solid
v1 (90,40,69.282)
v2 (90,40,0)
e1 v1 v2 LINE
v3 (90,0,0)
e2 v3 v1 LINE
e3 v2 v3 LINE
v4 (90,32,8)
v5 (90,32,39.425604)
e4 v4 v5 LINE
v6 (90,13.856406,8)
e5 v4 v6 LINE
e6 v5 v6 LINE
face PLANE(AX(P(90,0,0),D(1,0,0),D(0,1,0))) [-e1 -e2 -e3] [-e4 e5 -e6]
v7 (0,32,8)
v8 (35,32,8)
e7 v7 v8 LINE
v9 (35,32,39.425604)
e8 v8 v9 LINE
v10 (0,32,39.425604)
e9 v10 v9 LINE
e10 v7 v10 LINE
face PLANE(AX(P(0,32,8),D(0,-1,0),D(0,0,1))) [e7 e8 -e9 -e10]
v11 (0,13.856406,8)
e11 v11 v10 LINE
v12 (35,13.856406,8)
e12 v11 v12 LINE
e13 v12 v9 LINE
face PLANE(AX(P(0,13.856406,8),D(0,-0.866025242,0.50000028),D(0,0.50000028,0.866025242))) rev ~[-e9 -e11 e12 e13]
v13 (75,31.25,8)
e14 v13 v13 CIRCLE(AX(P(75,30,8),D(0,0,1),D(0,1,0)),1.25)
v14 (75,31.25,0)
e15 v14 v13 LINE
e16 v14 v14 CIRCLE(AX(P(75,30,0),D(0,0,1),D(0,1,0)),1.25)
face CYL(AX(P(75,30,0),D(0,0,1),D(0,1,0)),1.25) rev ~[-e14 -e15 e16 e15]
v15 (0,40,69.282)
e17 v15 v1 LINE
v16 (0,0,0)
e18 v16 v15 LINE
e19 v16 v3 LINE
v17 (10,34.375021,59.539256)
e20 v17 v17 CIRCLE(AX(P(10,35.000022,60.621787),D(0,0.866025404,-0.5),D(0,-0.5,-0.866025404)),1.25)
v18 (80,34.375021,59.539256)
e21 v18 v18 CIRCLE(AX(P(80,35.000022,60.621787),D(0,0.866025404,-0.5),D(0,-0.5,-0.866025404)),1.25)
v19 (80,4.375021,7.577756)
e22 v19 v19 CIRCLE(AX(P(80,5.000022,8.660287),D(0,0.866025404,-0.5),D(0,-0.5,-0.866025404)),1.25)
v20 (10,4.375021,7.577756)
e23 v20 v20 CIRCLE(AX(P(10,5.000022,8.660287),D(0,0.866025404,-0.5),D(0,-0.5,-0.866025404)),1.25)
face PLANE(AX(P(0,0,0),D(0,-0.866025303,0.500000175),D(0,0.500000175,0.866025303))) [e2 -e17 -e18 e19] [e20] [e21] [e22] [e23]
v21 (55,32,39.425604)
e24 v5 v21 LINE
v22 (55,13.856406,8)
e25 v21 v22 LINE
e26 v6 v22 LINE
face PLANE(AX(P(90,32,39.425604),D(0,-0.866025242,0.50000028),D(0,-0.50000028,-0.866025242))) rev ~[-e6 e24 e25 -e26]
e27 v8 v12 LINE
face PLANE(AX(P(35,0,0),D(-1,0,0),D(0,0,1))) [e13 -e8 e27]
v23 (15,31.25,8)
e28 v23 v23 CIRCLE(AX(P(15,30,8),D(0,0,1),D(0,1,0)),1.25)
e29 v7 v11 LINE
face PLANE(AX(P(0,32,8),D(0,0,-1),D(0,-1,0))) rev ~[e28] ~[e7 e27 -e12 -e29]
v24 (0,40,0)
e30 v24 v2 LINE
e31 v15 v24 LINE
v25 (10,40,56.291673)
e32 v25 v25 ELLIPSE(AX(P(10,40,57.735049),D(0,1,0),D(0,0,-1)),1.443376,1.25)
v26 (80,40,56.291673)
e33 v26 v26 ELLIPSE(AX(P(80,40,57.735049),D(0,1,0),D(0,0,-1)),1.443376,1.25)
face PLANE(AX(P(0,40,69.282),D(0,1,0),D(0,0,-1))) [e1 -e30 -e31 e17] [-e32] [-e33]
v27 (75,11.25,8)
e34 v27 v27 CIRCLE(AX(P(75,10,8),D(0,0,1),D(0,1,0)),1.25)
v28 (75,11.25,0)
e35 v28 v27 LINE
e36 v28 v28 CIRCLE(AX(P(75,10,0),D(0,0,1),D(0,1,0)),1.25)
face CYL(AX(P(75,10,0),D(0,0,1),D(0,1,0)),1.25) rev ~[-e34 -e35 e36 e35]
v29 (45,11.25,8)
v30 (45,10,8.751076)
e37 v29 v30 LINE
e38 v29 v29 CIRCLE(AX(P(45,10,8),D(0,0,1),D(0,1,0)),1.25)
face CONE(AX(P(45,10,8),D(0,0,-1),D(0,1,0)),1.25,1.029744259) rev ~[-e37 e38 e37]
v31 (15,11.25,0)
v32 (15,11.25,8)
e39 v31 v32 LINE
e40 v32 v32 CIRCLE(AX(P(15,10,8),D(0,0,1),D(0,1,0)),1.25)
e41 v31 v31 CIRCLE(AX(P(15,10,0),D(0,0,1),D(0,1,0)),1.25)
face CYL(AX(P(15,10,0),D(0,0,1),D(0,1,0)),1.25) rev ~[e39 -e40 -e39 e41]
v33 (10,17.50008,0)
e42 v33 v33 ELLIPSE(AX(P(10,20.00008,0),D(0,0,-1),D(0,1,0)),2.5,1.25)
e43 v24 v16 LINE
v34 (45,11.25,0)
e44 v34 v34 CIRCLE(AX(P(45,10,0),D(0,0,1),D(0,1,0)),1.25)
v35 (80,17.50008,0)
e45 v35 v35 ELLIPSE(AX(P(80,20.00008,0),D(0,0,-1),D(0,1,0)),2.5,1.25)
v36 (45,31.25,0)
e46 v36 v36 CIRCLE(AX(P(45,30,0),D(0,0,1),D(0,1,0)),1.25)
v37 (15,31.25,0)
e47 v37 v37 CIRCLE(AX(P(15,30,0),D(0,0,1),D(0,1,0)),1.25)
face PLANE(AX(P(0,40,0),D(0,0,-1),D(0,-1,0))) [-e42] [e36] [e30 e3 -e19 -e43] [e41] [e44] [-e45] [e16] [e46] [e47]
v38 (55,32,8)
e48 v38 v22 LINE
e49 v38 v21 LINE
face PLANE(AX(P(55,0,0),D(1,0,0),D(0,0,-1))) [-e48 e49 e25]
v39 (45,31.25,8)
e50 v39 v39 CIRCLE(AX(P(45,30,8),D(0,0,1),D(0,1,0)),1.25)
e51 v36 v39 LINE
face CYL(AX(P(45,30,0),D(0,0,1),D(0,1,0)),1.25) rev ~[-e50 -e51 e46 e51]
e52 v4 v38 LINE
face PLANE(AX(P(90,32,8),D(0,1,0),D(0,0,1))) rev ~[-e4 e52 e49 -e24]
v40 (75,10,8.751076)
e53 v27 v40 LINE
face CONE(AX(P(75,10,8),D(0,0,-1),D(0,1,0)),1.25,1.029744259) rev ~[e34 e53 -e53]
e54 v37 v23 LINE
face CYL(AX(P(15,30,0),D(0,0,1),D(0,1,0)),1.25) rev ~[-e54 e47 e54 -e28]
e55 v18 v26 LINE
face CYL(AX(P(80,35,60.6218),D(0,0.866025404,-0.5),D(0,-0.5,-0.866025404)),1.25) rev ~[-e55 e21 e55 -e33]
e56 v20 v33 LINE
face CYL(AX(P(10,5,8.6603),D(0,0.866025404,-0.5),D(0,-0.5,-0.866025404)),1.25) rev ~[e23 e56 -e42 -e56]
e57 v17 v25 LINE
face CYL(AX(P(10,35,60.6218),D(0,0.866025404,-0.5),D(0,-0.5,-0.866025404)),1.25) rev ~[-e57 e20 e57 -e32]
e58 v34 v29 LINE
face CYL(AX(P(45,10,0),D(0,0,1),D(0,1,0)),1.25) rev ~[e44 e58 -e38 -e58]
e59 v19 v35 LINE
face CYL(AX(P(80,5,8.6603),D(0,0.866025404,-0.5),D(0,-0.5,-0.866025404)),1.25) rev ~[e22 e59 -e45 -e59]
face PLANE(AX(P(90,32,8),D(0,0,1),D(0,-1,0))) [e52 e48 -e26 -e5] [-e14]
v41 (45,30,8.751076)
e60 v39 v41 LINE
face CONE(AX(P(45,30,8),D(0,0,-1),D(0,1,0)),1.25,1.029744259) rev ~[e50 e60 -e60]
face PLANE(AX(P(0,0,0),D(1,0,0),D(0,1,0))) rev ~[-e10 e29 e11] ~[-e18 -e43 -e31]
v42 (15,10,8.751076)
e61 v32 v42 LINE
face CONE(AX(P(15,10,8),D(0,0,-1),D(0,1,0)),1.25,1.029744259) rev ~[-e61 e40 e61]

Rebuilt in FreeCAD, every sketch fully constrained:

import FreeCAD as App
import Part
import Sketcher

V = App.Vector
Q = App.Units.Quantity


def add_polygon(sketch, points):
    """Adds a closed chain of lines whose ends are joined by coincident constraints."""
    first, n = sketch.GeometryCount, len(points)
    for a, b in zip(points, points[1:] + points[:1]):
        sketch.addGeometry(Part.LineSegment(App.Vector(*a, 0), App.Vector(*b, 0)), False)
    for i in range(n):
        sketch.addConstraint(Sketcher.Constraint("Coincident", first + i, 2, first + (i + 1) % n, 1))

doc = App.newDocument("Part")
params = doc.addObject("Spreadsheet::Sheet", "Params")
for row, (alias, value) in enumerate([
    ("sketch1_length", "80 mm"),
    ("sketch1_width", "40 mm"),
    ("pad1_length", "90 mm"),
    ("sketch2_diameter", "2.5 mm"),
    ("hole_diameter", "2.5 mm"),
    ("hole_depth", "20 mm"),
    ("sketch3_diameter", "2.5 mm"),
    ("hole2_diameter", "2.5 mm"),
    ("hole2_depth", "8 mm"),
    ("pocket1_length", "35 mm"),
    ("pocket2_length", "35 mm"),
], start=1):
    params.set(f"A{row}", alias)
    params.set(f"B{row}", "=" + value)
    params.setAlias(f"B{row}", alias)

body = doc.addObject("PartDesign::Body", "Body")

# Sketch on YZ plane
sketch1 = body.newObject("Sketcher::SketchObject", "Sketch")
sketch1.AttachmentSupport = (doc.getObject("YZ_Plane"), [""])
sketch1.MapMode = "FlatFace"
add_polygon(sketch1, [(40, 69), (0, 0), (40, 0)])  # lines 0-2
sketch1.addConstraint([
    Sketcher.Constraint("Horizontal", 1),
    Sketcher.Constraint("Vertical", 2),
    Sketcher.Constraint("Coincident", 0, 2, -1, 1),
    Sketcher.Constraint("Distance", 0, 80.0),
    Sketcher.Constraint("DistanceX", 1, 1, 1, 2, 40.0),
])
sketch1.setExpression("Constraints[6]", "Params.sketch1_length")
sketch1.setExpression("Constraints[7]", "Params.sketch1_width")
pad1 = body.newObject("PartDesign::Pad", "Pad")
pad1.Profile = sketch1
pad1.setExpression("Length", "Params.pad1_length")

# Sketch on an angled plane
sketch2 = body.newObject("Sketcher::SketchObject", "Sketch001")
sketch2.Placement = App.Placement(V(0, -0.000009, 0.000005), App.Rotation(V(0, -0.5, -0.866025404), V(1, 0, 0), V(0, -0.866025404, 0.5), "ZXY"))
sketch2.addGeometry([
    Part.Circle(V(-70, 10, 0), V(0, 0, 1), 1.2),
    Part.Circle(V(-10, 10, 0), V(0, 0, 1), 1.2),
    Part.Circle(V(-10, 80, 0), V(0, 0, 1), 1.2),
    Part.Circle(V(-70, 80, 0), V(0, 0, 1), 1.2),
], False)
sketch2.addConstraint([
    Sketcher.Constraint("Equal", 0, 1),
    Sketcher.Constraint("Equal", 1, 2),
    Sketcher.Constraint("Equal", 2, 3),
    Sketcher.Constraint("Horizontal", 0, 3, 1, 3),
    Sketcher.Constraint("Horizontal", 2, 3, 3, 3),
    Sketcher.Constraint("Vertical", 1, 3, 2, 3),
    Sketcher.Constraint("Vertical", 0, 3, 3, 3),
    Sketcher.Constraint("Diameter", 0, 2.5),
    Sketcher.Constraint("DistanceX", 0, 3, -1, 1, 70.0),
    Sketcher.Constraint("DistanceY", -1, 1, 0, 3, 10.0),
    Sketcher.Constraint("DistanceX", 1, 3, -1, 1, 10.0),
    Sketcher.Constraint("DistanceY", -1, 1, 2, 3, 80.0),
])
sketch2.setExpression("Constraints[7]", "Params.sketch2_diameter")
doc.recompute()
hole = body.newObject("PartDesign::Hole", "Hole")
hole.Profile = sketch2
hole.ThreadType = "None"
hole.setExpression("Diameter", "Params.hole_diameter")
hole.DepthType = "Dimension"
hole.setExpression("Depth", "Params.hole_depth")
hole.DrillPoint = "Angled"
hole.DrillPointAngle = 118

# Sketch on XY plane
sketch3 = body.newObject("Sketcher::SketchObject", "Sketch002")
sketch3.AttachmentSupport = (doc.getObject("XY_Plane"), [""])
sketch3.MapMode = "FlatFace"
sketch3.addGeometry([
    Part.Circle(V(75, 30, 0), V(0, 0, 1), 1.2),  # 0
    Part.Circle(V(75, 10, 0), V(0, 0, 1), 1.2),  # 1
    Part.Circle(V(15, 30, 0), V(0, 0, 1), 1.2),  # 2
    Part.Circle(V(15, 10, 0), V(0, 0, 1), 1.2),  # 3
    Part.Circle(V(45, 10, 0), V(0, 0, 1), 1.2),  # 4
    Part.Circle(V(45, 30, 0), V(0, 0, 1), 1.2),  # 5
], False)
sketch3.addConstraint([
    Sketcher.Constraint("Equal", 0, 1),
    Sketcher.Constraint("Equal", 1, 2),
    Sketcher.Constraint("Equal", 2, 3),
    Sketcher.Constraint("Equal", 3, 4),
    Sketcher.Constraint("Equal", 4, 5),
    Sketcher.Constraint("Horizontal", 0, 3, 2, 3),
    Sketcher.Constraint("Horizontal", 1, 3, 3, 3),
    Sketcher.Constraint("Horizontal", 3, 3, 4, 3),
    Sketcher.Constraint("Horizontal", 2, 3, 5, 3),
    Sketcher.Constraint("Vertical", 0, 3, 1, 3),
    Sketcher.Constraint("Vertical", 2, 3, 3, 3),
    Sketcher.Constraint("Vertical", 4, 3, 5, 3),
    Sketcher.Constraint("Diameter", 0, 2.5),
    Sketcher.Constraint("DistanceX", -1, 1, 0, 3, 75.0),
    Sketcher.Constraint("DistanceY", -1, 1, 0, 3, 30.0),
    Sketcher.Constraint("DistanceY", -1, 1, 1, 3, 10.0),
    Sketcher.Constraint("DistanceX", -1, 1, 2, 3, 15.0),
    Sketcher.Constraint("DistanceX", -1, 1, 4, 3, 45.0),
])
sketch3.setExpression("Constraints[12]", "Params.sketch3_diameter")
doc.recompute()
hole2 = body.newObject("PartDesign::Hole", "Hole001")
hole2.Profile = sketch3
hole2.ThreadType = "None"
hole2.setExpression("Diameter", "Params.hole2_diameter")
hole2.DepthType = "Dimension"
hole2.setExpression("Depth", "Params.hole2_depth")
hole2.DrillPoint = "Angled"
hole2.DrillPointAngle = 118
hole2.Reversed = True

# Sketch on YZ plane
sketch4 = body.newObject("Sketcher::SketchObject", "Sketch003")
sketch4.AttachmentSupport = (doc.getObject("YZ_Plane"), [""])
sketch4.MapMode = "FlatFace"
sketch4.AttachmentOffset = App.Placement(V(0, 0, 90), App.Rotation())
add_polygon(sketch4, [(32, 8), (32, 39), (14, 8)])  # lines 0-2
sketch4.addConstraint([
    Sketcher.Constraint("Vertical", 0),
    Sketcher.Constraint("Horizontal", 2),
    Sketcher.Constraint("DistanceY", -1, 1, 1, 2, 8.0),
    Sketcher.Constraint("Angle", 1, Q("-120 deg")),
    Sketcher.Constraint("DistanceX", -1, 1, 0, 2, 32.0),
    Sketcher.Constraint("DistanceX", 2, 1, 2, 2, 18.1436),
])
pocket1 = body.newObject("PartDesign::Pocket", "Pocket")
pocket1.Profile = sketch4
pocket1.setExpression("Length", "Params.pocket1_length")

# Sketch on YZ plane
sketch5 = body.newObject("Sketcher::SketchObject", "Sketch004")
sketch5.AttachmentSupport = (doc.getObject("YZ_Plane"), [""])
sketch5.MapMode = "FlatFace"
add_polygon(sketch5, [(32, 8), (14, 8), (32, 39)])  # lines 0-2
sketch5.addConstraint([
    Sketcher.Constraint("Horizontal", 0),
    Sketcher.Constraint("Vertical", 2),
    Sketcher.Constraint("DistanceY", -1, 1, 0, 2, 8.0),
    Sketcher.Constraint("Angle", 1, Q("60 deg")),
    Sketcher.Constraint("DistanceX", -1, 1, 1, 2, 32.0),
    Sketcher.Constraint("DistanceX", 0, 2, 0, 1, 18.1436),
])
pocket2 = body.newObject("PartDesign::Pocket", "Pocket001")
pocket2.Profile = sketch5
pocket2.setExpression("Length", "Params.pocket2_length")
pocket2.Reversed = True

doc.recompute()
